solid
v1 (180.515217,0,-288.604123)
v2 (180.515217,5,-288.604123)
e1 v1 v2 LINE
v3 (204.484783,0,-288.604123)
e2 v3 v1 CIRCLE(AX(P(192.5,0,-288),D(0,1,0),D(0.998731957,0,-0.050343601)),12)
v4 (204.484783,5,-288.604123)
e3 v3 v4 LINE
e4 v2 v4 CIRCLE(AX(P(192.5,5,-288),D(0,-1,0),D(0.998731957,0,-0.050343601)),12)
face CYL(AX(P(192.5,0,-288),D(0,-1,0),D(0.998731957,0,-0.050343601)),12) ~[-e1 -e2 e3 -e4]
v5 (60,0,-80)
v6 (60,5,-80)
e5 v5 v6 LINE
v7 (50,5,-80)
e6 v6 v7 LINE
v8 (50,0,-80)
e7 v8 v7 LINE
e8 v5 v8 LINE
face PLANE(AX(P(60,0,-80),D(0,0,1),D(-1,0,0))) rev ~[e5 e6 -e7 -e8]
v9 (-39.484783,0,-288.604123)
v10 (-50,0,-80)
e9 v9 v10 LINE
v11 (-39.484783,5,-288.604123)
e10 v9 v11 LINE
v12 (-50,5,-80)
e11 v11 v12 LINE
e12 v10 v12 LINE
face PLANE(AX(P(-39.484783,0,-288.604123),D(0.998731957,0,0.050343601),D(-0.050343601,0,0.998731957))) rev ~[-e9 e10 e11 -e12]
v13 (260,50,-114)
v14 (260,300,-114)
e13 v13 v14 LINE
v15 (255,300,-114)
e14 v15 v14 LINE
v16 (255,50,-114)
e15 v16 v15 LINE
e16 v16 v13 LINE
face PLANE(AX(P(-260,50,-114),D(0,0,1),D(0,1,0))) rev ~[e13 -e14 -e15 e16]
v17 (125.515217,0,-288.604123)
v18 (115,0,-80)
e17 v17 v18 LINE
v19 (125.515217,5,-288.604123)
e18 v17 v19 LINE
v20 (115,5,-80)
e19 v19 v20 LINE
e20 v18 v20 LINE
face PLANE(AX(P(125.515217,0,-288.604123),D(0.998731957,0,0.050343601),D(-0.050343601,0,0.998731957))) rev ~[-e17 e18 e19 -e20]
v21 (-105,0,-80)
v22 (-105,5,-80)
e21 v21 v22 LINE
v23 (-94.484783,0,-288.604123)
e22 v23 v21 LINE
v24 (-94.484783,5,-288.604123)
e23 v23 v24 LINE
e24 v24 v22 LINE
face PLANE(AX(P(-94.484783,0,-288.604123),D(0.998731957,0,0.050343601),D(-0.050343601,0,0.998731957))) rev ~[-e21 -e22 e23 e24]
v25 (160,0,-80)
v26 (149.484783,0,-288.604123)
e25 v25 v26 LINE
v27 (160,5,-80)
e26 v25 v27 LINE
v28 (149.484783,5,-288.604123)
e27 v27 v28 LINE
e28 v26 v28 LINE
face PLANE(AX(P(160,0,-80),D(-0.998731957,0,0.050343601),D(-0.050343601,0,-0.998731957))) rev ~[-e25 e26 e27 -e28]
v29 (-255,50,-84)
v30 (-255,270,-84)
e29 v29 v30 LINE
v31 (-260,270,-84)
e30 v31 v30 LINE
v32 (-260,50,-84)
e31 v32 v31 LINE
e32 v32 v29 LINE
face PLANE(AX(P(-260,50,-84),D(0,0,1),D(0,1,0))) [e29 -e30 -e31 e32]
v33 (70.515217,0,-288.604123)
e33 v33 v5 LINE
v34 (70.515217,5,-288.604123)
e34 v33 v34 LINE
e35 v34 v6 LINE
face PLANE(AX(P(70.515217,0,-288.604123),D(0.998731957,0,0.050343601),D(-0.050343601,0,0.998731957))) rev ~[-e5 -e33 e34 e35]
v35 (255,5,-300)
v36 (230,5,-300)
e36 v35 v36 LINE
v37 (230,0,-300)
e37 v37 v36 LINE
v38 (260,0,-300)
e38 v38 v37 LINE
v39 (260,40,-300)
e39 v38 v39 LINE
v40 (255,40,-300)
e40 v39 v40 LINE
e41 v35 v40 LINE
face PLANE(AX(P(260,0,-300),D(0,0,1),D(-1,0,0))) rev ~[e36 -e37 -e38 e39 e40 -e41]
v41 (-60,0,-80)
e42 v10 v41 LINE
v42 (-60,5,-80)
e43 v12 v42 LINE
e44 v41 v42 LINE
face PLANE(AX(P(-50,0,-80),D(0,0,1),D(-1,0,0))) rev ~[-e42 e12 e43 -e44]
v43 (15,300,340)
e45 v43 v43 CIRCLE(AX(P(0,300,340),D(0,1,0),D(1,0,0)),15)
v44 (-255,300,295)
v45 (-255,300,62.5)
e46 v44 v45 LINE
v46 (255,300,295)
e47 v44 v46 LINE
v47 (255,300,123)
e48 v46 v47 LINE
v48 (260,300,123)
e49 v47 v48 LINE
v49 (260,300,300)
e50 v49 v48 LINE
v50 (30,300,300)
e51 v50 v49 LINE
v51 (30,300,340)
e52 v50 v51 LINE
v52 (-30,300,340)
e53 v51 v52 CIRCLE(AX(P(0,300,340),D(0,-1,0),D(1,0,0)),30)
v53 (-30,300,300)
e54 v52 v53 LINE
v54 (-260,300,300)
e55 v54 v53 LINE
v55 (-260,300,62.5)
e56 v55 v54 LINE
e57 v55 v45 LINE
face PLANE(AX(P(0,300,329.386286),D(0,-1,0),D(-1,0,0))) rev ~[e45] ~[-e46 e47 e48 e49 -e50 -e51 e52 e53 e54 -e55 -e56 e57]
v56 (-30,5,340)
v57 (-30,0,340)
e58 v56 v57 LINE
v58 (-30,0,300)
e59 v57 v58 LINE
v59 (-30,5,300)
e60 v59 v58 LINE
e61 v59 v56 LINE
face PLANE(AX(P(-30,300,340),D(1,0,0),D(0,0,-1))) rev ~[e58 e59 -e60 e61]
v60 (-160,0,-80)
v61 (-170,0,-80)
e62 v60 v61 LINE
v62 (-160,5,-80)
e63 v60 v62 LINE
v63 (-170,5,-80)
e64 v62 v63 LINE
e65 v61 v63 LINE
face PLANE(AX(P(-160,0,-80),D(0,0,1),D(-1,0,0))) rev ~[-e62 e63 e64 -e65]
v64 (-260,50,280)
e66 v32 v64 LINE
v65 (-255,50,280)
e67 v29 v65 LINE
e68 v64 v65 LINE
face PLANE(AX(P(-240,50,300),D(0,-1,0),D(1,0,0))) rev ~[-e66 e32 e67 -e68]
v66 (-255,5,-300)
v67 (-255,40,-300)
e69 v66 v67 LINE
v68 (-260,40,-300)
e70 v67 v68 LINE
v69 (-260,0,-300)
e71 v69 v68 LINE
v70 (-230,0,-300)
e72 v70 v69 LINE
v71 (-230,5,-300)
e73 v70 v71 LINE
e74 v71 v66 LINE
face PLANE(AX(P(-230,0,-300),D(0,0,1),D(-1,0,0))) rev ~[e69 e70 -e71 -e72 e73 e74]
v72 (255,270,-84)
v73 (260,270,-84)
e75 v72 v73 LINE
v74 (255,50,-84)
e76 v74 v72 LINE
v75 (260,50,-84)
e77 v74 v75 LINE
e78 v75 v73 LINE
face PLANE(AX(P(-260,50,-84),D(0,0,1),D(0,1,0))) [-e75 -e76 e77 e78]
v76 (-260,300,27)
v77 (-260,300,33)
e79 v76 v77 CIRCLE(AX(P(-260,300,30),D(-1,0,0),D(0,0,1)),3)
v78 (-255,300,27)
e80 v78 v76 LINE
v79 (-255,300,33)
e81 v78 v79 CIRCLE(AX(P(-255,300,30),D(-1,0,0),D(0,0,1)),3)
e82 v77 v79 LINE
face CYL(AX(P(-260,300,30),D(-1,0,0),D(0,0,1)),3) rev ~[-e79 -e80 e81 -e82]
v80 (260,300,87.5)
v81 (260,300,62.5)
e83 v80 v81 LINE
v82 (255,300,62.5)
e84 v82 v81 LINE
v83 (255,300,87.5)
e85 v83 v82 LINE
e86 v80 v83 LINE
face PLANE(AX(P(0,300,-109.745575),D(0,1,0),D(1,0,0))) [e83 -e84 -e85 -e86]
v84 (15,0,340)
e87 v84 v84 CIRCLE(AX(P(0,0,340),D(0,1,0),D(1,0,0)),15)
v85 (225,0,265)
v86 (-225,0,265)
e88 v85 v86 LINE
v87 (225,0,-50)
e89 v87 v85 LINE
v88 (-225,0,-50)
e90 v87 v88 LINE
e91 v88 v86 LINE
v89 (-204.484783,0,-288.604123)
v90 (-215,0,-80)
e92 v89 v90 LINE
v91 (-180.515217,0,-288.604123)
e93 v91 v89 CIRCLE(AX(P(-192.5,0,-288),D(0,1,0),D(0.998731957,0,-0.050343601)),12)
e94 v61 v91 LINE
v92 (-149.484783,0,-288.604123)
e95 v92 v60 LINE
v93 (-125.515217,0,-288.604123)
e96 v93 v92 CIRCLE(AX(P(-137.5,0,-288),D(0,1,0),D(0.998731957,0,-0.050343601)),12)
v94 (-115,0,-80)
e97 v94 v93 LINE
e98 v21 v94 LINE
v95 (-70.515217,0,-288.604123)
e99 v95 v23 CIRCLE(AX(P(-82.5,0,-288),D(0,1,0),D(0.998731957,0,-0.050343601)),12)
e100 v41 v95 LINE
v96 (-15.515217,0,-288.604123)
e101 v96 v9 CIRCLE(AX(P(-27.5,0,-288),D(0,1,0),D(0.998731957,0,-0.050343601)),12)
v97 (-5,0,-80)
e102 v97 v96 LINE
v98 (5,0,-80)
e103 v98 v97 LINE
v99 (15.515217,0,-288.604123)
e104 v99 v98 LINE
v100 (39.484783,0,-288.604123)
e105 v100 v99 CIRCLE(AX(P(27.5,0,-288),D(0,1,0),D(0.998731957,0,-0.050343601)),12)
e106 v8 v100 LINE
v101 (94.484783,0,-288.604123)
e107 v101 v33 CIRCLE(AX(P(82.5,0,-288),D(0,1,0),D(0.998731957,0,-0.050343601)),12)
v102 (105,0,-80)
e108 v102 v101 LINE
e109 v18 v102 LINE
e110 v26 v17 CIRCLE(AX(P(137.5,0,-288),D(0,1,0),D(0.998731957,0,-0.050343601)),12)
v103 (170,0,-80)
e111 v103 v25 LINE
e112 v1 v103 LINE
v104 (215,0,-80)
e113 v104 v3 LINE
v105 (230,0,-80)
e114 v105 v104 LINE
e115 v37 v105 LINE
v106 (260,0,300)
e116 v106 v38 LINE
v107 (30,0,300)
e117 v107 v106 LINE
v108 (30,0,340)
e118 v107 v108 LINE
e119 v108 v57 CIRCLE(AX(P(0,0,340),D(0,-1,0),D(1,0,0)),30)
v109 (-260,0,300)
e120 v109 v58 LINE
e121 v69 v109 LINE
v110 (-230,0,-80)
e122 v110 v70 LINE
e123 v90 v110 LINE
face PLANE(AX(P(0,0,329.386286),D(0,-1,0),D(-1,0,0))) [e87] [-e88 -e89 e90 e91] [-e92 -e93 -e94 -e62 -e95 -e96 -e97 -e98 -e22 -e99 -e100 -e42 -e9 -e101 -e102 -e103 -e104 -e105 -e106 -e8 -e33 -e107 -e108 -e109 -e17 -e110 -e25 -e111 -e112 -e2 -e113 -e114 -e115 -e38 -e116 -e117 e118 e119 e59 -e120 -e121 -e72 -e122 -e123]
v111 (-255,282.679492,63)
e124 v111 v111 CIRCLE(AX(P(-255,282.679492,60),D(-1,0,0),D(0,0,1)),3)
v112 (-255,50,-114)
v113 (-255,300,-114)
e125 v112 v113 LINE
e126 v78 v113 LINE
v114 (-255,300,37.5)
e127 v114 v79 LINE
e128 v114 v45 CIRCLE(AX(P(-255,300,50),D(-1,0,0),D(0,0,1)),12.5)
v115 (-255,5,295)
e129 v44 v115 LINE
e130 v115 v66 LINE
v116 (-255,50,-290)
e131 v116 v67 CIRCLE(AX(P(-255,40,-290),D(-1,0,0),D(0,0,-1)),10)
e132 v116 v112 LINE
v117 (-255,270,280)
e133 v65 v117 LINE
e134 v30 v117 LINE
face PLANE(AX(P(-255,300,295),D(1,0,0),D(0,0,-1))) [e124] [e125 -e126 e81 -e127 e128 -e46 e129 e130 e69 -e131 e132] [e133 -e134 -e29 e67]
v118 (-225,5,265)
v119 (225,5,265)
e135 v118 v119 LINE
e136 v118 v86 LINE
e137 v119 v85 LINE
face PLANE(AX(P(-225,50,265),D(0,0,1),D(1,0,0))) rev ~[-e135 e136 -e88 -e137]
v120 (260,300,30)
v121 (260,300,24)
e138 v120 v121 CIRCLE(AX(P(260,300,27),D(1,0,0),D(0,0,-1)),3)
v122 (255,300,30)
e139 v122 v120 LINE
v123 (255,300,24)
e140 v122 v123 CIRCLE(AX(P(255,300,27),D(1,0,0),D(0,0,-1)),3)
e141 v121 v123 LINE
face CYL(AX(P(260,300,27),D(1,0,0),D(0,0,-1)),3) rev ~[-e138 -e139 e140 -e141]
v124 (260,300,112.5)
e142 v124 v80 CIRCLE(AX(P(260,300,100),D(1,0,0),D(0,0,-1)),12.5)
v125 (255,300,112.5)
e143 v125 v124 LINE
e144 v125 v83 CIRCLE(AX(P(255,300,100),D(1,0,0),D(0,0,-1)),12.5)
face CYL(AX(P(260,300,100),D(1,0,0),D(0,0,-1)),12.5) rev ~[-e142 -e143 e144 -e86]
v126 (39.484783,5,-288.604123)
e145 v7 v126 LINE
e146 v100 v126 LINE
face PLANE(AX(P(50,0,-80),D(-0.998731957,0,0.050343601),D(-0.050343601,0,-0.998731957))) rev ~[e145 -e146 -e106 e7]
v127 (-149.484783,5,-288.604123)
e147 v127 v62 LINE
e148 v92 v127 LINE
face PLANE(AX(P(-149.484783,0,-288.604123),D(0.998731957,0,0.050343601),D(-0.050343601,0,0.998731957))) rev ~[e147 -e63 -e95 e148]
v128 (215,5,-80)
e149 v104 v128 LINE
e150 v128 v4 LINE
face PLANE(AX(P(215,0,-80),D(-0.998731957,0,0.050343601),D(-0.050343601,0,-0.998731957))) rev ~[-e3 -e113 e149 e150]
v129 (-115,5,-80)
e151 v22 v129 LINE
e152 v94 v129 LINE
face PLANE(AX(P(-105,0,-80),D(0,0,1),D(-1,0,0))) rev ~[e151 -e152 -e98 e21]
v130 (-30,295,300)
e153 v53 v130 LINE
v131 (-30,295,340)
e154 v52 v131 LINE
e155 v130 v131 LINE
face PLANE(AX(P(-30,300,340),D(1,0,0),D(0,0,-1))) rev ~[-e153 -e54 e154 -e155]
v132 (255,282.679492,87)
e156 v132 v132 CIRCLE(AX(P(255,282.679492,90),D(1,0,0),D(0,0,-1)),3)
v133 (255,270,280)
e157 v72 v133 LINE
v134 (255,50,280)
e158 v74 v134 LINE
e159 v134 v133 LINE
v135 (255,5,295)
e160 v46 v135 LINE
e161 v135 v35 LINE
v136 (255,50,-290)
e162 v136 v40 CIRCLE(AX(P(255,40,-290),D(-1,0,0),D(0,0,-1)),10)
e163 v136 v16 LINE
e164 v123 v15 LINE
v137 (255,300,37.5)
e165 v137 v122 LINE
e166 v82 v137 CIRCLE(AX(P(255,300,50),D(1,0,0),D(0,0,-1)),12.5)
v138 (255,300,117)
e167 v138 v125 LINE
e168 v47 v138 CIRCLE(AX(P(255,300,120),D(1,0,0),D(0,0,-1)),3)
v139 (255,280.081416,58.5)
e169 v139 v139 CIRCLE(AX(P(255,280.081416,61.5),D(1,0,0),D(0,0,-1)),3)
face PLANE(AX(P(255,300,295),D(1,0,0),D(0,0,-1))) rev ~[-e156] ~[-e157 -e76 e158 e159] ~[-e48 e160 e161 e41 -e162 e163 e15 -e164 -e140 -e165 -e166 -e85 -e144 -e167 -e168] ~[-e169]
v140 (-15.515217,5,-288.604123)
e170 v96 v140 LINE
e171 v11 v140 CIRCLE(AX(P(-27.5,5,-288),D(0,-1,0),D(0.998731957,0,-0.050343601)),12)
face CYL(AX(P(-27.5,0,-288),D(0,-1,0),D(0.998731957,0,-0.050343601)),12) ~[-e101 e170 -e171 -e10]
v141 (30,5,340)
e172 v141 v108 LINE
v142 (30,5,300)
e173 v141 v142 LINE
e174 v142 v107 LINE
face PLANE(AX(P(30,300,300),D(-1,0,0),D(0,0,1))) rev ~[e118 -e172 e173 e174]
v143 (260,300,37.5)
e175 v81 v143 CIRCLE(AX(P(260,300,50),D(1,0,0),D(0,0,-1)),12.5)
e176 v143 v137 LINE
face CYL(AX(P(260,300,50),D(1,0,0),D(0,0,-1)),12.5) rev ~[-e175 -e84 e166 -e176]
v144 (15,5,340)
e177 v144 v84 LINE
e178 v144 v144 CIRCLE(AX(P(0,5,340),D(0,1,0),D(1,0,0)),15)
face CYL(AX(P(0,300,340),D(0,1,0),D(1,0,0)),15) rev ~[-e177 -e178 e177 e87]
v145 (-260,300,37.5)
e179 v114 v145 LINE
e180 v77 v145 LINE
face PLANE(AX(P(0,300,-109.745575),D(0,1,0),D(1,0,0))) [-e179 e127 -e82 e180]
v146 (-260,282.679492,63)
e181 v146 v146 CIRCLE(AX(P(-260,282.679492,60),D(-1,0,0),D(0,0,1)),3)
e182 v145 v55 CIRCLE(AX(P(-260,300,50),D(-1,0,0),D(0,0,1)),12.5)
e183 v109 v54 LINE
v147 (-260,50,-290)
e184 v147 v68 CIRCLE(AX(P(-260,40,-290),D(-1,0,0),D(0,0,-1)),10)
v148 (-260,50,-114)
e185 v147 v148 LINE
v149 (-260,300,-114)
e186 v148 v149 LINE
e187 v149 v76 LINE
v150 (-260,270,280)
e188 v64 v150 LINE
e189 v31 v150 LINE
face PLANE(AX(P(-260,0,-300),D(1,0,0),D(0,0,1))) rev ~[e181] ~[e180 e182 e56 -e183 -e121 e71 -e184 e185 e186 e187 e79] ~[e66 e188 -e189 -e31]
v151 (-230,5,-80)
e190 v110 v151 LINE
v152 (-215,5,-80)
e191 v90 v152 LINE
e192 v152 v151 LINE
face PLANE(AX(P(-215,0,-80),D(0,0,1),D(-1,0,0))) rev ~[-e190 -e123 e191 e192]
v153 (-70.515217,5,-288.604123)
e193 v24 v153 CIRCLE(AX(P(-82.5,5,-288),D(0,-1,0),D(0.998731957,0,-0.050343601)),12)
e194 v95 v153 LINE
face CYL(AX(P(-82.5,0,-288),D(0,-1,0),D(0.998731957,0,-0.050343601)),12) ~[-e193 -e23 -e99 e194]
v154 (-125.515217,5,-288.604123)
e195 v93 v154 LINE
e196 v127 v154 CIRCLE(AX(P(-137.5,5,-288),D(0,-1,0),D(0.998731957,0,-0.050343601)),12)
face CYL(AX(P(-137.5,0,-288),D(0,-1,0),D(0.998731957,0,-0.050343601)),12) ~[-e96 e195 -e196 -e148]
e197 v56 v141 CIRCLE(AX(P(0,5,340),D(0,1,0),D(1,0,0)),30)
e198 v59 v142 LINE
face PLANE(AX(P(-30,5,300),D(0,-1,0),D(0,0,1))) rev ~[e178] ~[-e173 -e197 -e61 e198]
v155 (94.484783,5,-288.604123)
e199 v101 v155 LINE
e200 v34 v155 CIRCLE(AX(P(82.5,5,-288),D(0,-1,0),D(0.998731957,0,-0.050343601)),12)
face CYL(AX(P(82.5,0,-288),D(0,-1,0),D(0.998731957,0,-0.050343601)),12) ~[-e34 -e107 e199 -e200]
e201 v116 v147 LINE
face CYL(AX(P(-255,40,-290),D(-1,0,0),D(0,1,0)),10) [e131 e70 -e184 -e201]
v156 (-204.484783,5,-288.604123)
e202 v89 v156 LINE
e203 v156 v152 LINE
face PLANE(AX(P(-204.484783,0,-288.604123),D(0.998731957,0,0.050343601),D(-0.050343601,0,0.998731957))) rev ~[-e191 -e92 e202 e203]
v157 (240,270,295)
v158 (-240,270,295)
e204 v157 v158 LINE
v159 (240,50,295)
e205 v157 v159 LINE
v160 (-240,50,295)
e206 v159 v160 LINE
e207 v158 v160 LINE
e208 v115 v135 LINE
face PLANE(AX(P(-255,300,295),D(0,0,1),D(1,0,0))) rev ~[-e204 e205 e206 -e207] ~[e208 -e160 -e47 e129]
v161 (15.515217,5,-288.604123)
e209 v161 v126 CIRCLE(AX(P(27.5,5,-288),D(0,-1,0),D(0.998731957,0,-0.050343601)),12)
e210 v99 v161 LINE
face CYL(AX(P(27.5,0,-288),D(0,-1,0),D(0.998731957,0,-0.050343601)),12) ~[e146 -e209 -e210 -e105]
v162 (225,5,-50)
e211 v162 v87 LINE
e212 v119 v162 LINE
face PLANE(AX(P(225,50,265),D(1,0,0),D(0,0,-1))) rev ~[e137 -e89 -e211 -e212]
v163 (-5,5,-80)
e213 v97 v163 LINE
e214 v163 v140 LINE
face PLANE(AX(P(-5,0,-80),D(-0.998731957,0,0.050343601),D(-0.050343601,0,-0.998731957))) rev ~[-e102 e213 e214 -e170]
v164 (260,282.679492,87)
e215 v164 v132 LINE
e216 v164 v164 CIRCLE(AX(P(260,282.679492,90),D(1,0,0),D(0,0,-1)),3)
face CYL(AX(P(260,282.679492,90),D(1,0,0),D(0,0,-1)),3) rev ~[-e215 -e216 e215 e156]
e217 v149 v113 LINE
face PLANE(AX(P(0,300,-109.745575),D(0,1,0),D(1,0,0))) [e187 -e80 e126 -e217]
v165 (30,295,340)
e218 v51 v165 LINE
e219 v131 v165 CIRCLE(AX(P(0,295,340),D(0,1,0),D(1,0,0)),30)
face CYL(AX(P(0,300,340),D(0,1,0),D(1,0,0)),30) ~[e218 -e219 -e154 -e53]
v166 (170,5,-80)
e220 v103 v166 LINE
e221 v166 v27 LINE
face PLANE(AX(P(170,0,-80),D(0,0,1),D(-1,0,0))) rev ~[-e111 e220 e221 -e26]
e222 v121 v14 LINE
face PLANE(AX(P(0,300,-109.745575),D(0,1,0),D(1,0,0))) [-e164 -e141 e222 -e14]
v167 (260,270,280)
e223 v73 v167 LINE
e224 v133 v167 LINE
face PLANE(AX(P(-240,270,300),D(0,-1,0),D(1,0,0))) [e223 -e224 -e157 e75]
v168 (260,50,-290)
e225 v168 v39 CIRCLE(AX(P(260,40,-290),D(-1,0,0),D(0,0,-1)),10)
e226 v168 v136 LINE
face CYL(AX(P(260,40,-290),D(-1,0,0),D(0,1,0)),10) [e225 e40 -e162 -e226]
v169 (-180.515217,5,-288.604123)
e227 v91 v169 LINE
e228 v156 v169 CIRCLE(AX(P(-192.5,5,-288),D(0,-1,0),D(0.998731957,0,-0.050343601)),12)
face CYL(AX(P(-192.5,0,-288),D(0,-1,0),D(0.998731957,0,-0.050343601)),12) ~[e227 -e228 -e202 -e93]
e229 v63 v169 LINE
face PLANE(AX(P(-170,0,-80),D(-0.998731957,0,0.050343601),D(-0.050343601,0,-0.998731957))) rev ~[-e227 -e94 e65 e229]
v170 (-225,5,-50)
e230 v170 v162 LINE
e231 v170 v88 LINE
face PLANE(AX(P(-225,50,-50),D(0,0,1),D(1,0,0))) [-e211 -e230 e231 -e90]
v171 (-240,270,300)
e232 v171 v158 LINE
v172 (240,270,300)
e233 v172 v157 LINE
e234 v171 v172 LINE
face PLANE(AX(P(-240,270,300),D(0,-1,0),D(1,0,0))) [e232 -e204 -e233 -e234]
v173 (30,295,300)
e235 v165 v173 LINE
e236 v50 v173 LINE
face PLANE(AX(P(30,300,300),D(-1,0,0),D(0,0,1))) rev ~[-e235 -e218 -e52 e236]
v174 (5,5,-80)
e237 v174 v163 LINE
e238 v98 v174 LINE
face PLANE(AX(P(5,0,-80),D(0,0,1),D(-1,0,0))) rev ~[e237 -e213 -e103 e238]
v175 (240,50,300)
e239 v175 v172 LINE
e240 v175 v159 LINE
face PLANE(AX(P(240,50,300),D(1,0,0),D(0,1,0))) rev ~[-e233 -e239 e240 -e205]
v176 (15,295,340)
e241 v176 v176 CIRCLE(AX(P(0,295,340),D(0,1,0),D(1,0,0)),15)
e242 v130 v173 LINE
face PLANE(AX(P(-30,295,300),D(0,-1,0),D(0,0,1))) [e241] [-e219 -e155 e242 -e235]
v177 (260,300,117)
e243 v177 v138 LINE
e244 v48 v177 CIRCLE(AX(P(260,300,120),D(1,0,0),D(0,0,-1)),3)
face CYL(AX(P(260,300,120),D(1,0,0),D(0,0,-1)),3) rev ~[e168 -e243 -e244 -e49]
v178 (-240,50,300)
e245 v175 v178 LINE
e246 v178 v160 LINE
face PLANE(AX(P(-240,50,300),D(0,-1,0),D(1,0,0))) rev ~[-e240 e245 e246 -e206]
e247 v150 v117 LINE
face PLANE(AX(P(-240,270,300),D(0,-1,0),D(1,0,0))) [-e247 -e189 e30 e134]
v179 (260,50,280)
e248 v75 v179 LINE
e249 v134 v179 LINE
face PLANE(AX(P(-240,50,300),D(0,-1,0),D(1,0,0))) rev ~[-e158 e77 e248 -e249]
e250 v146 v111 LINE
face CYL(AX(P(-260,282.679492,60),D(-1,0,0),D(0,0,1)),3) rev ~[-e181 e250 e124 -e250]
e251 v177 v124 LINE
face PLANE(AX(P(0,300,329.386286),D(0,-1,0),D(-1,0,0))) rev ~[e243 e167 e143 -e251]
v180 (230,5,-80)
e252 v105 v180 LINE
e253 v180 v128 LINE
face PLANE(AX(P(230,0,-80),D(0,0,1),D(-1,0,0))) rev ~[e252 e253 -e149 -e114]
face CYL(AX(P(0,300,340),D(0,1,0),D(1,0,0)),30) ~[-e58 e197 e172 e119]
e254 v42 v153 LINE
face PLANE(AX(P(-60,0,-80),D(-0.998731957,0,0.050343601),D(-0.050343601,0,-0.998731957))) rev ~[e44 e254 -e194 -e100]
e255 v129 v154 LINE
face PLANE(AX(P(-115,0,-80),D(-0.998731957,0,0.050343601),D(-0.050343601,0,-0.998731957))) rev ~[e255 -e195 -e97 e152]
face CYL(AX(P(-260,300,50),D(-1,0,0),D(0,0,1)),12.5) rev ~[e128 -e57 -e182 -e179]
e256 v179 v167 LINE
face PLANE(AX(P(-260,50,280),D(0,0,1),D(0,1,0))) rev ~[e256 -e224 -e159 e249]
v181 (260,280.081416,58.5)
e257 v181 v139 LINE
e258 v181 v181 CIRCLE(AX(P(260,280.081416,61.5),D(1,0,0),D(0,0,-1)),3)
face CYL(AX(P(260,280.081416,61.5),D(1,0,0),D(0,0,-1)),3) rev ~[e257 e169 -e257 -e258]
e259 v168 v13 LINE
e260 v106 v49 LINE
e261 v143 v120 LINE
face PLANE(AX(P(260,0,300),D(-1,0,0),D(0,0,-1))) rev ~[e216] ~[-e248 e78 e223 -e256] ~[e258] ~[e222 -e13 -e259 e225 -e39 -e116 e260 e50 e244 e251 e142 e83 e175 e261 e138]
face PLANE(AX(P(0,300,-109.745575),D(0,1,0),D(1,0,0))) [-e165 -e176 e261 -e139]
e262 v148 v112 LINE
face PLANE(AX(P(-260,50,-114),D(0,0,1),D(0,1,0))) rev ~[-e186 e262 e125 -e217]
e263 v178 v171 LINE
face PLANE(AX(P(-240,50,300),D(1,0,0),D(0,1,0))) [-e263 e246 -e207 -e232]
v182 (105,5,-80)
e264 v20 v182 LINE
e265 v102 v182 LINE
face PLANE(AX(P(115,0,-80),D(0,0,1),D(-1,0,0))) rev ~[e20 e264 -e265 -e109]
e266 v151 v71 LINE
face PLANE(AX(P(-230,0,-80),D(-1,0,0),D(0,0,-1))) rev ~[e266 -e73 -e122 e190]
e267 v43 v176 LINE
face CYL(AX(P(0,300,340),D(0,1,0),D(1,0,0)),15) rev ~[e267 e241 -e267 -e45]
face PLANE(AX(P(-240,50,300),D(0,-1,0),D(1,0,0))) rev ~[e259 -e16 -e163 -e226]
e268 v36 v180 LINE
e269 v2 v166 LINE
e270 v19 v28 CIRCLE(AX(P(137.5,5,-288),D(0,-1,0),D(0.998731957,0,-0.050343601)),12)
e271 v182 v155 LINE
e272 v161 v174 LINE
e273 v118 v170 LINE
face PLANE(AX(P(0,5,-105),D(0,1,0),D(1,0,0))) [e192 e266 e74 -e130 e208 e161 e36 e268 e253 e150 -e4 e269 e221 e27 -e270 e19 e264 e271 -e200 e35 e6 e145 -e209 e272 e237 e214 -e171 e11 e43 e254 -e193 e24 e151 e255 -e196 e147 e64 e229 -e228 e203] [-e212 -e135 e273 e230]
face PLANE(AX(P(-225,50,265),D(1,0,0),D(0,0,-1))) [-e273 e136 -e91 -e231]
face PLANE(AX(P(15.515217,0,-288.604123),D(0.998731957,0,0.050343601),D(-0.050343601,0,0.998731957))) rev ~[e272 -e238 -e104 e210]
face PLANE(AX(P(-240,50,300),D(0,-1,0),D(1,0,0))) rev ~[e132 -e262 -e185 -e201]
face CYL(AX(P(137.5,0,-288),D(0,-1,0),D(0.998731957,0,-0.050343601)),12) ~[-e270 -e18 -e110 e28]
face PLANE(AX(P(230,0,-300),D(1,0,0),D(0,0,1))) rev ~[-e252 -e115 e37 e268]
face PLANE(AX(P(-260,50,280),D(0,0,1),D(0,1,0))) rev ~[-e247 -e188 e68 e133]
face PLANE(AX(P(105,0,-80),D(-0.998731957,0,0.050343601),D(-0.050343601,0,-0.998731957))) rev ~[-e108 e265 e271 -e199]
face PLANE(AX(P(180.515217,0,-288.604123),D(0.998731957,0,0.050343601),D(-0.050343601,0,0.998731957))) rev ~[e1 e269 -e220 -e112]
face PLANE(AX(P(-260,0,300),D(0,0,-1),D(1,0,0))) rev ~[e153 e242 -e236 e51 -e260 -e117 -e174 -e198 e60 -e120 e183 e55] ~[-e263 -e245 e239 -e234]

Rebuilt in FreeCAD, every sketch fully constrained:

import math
import FreeCAD as App
import Part
import Sketcher
from FreeCAD import Vector


def edges_at(feature, points):
    """Names of the edges that pass closest to the given points."""
    edges = feature.Shape.Edges
    near = lambda p: min(range(len(edges)), key=lambda i: edges[i].distToShape(Part.Vertex(*p))[0])
    return sorted({f"Edge{near(p) + 1}" for p in points})


def add_polygon(sketch, points):
    """Adds a closed chain of lines whose ends are joined by coincident constraints."""
    first, n = sketch.GeometryCount, len(points)
    for a, b in zip(points, points[1:] + points[:1]):
        sketch.addGeometry(Part.LineSegment(App.Vector(*a, 0), App.Vector(*b, 0)), False)
    for i in range(n):
        sketch.addConstraint(Sketcher.Constraint("Coincident", first + i, 2, first + (i + 1) % n, 1))

doc = App.newDocument("Part")
body = doc.addObject("PartDesign::Body", "Body")

sketch1 = body.newObject("Sketcher::SketchObject", "Sketch")
sketch1.AttachmentSupport = (doc.getObject("XZ_Plane"), [""])
sketch1.MapMode = "FlatFace"
sketch1.addGeometry(Part.LineSegment(Vector(-215, -80, 0), Vector(-230, -80, 0)), False)
sketch1.addGeometry(Part.LineSegment(Vector(-230, -80, 0), Vector(-230, -300, 0)), False)
sketch1.addGeometry(Part.LineSegment(Vector(-230, -300, 0), Vector(-260, -300, 0)), False)
sketch1.addGeometry(Part.LineSegment(Vector(-260, -300, 0), Vector(-260, 300, 0)), False)
sketch1.addGeometry(Part.LineSegment(Vector(-260, 300, 0), Vector(260, 300, 0)), False)
sketch1.addGeometry(Part.LineSegment(Vector(260, 300, 0), Vector(260, -300, 0)), False)
sketch1.addGeometry(Part.LineSegment(Vector(260, -300, 0), Vector(230, -300, 0)), False)
sketch1.addGeometry(Part.LineSegment(Vector(230, -300, 0), Vector(230, -80, 0)), False)
sketch1.addGeometry(Part.LineSegment(Vector(230, -80, 0), Vector(215, -80, 0)), False)
sketch1.addGeometry(Part.LineSegment(Vector(215, -80, 0), Vector(204.484783, -288.604123, 0)), False)
sketch1.addGeometry(Part.ArcOfCircle(Part.Circle(Vector(192.5, -288, 0), Vector(0, 0, 1), 12), math.radians(-177.114304), math.radians(-2.885696)), False)
sketch1.addGeometry(Part.LineSegment(Vector(180.515217, -288.604123, 0), Vector(170, -80, 0)), False)
sketch1.addGeometry(Part.LineSegment(Vector(170, -80, 0), Vector(160, -80, 0)), False)
sketch1.addGeometry(Part.LineSegment(Vector(160, -80, 0), Vector(149.484783, -288.604123, 0)), False)
sketch1.addGeometry(Part.ArcOfCircle(Part.Circle(Vector(137.5, -288, 0), Vector(0, 0, 1), 12), math.radians(-177.114304), math.radians(-2.885696)), False)
sketch1.addGeometry(Part.LineSegment(Vector(125.515217, -288.604123, 0), Vector(115, -80, 0)), False)
sketch1.addGeometry(Part.LineSegment(Vector(115, -80, 0), Vector(105, -80, 0)), False)
sketch1.addGeometry(Part.LineSegment(Vector(105, -80, 0), Vector(94.484783, -288.604123, 0)), False)
sketch1.addGeometry(Part.ArcOfCircle(Part.Circle(Vector(82.5, -288, 0), Vector(0, 0, 1), 12), math.radians(-177.114304), math.radians(-2.885696)), False)
sketch1.addGeometry(Part.LineSegment(Vector(70.515217, -288.604123, 0), Vector(60, -80, 0)), False)
sketch1.addGeometry(Part.LineSegment(Vector(60, -80, 0), Vector(50, -80, 0)), False)
sketch1.addGeometry(Part.LineSegment(Vector(50, -80, 0), Vector(39.484783, -288.604123, 0)), False)
sketch1.addGeometry(Part.ArcOfCircle(Part.Circle(Vector(27.5, -288, 0), Vector(0, 0, 1), 12), math.radians(-177.114304), math.radians(-2.885696)), False)
sketch1.addGeometry(Part.LineSegment(Vector(15.515217, -288.604123, 0), Vector(5, -80, 0)), False)
sketch1.addGeometry(Part.LineSegment(Vector(5, -80, 0), Vector(-5, -80, 0)), False)
sketch1.addGeometry(Part.LineSegment(Vector(-5, -80, 0), Vector(-15.515217, -288.604123, 0)), False)
sketch1.addGeometry(Part.ArcOfCircle(Part.Circle(Vector(-27.5, -288, 0), Vector(0, 0, 1), 12), math.radians(-177.114304), math.radians(-2.885696)), False)
sketch1.addGeometry(Part.LineSegment(Vector(-39.484783, -288.604123, 0), Vector(-50, -80, 0)), False)
sketch1.addGeometry(Part.LineSegment(Vector(-50, -80, 0), Vector(-60, -80, 0)), False)
sketch1.addGeometry(Part.LineSegment(Vector(-60, -80, 0), Vector(-70.515217, -288.604123, 0)), False)
sketch1.addGeometry(Part.ArcOfCircle(Part.Circle(Vector(-82.5, -288, 0), Vector(0, 0, 1), 12), math.radians(-177.114304), math.radians(-2.885696)), False)
sketch1.addGeometry(Part.LineSegment(Vector(-94.484783, -288.604123, 0), Vector(-105, -80, 0)), False)
sketch1.addGeometry(Part.LineSegment(Vector(-105, -80, 0), Vector(-115, -80, 0)), False)
sketch1.addGeometry(Part.LineSegment(Vector(-115, -80, 0), Vector(-125.515217, -288.604123, 0)), False)
sketch1.addGeometry(Part.ArcOfCircle(Part.Circle(Vector(-137.5, -288, 0), Vector(0, 0, 1), 12), math.radians(-177.114304), math.radians(-2.885696)), False)
sketch1.addGeometry(Part.LineSegment(Vector(-149.484783, -288.604123, 0), Vector(-160, -80, 0)), False)
sketch1.addGeometry(Part.LineSegment(Vector(-160, -80, 0), Vector(-170, -80, 0)), False)
sketch1.addGeometry(Part.LineSegment(Vector(-170, -80, 0), Vector(-180.515217, -288.604123, 0)), False)
sketch1.addGeometry(Part.ArcOfCircle(Part.Circle(Vector(-192.5, -288, 0), Vector(0, 0, 1), 12), math.radians(-177.114304), math.radians(-2.885696)), False)
sketch1.addGeometry(Part.LineSegment(Vector(-204.484783, -288.604123, 0), Vector(-215, -80, 0)), False)
sketch1.addConstraint(Sketcher.Constraint("Coincident", 0, 2, 1, 1))
sketch1.addConstraint(Sketcher.Constraint("Coincident", 1, 2, 2, 1))
sketch1.addConstraint(Sketcher.Constraint("Coincident", 2, 2, 3, 1))
sketch1.addConstraint(Sketcher.Constraint("Coincident", 3, 2, 4, 1))
sketch1.addConstraint(Sketcher.Constraint("Coincident", 4, 2, 5, 1))
sketch1.addConstraint(Sketcher.Constraint("Coincident", 5, 2, 6, 1))
sketch1.addConstraint(Sketcher.Constraint("Coincident", 6, 2, 7, 1))
sketch1.addConstraint(Sketcher.Constraint("Coincident", 7, 2, 8, 1))
sketch1.addConstraint(Sketcher.Constraint("Coincident", 8, 2, 9, 1))
sketch1.addConstraint(Sketcher.Constraint("Tangent", 9, 2, 10, 2))
sketch1.addConstraint(Sketcher.Constraint("Tangent", 10, 1, 11, 1))
sketch1.addConstraint(Sketcher.Constraint("Coincident", 11, 2, 12, 1))
sketch1.addConstraint(Sketcher.Constraint("Coincident", 12, 2, 13, 1))
sketch1.addConstraint(Sketcher.Constraint("Tangent", 13, 2, 14, 2))
sketch1.addConstraint(Sketcher.Constraint("Tangent", 14, 1, 15, 1))
sketch1.addConstraint(Sketcher.Constraint("Coincident", 15, 2, 16, 1))
sketch1.addConstraint(Sketcher.Constraint("Coincident", 16, 2, 17, 1))
sketch1.addConstraint(Sketcher.Constraint("Tangent", 17, 2, 18, 2))
sketch1.addConstraint(Sketcher.Constraint("Tangent", 18, 1, 19, 1))
sketch1.addConstraint(Sketcher.Constraint("Coincident", 19, 2, 20, 1))
sketch1.addConstraint(Sketcher.Constraint("Coincident", 20, 2, 21, 1))
sketch1.addConstraint(Sketcher.Constraint("Tangent", 21, 2, 22, 2))
sketch1.addConstraint(Sketcher.Constraint("Tangent", 22, 1, 23, 1))
sketch1.addConstraint(Sketcher.Constraint("Coincident", 23, 2, 24, 1))
sketch1.addConstraint(Sketcher.Constraint("Coincident", 24, 2, 25, 1))
sketch1.addConstraint(Sketcher.Constraint("Tangent", 25, 2, 26, 2))
sketch1.addConstraint(Sketcher.Constraint("Tangent", 26, 1, 27, 1))
sketch1.addConstraint(Sketcher.Constraint("Coincident", 27, 2, 28, 1))
sketch1.addConstraint(Sketcher.Constraint("Coincident", 28, 2, 29, 1))
sketch1.addConstraint(Sketcher.Constraint("Tangent", 29, 2, 30, 2))
sketch1.addConstraint(Sketcher.Constraint("Tangent", 30, 1, 31, 1))
sketch1.addConstraint(Sketcher.Constraint("Coincident", 31, 2, 32, 1))
sketch1.addConstraint(Sketcher.Constraint("Coincident", 32, 2, 33, 1))
sketch1.addConstraint(Sketcher.Constraint("Tangent", 33, 2, 34, 2))
sketch1.addConstraint(Sketcher.Constraint("Tangent", 34, 1, 35, 1))
sketch1.addConstraint(Sketcher.Constraint("Coincident", 35, 2, 36, 1))
sketch1.addConstraint(Sketcher.Constraint("Coincident", 36, 2, 37, 1))
sketch1.addConstraint(Sketcher.Constraint("Tangent", 37, 2, 38, 2))
sketch1.addConstraint(Sketcher.Constraint("Tangent", 38, 1, 39, 1))
sketch1.addConstraint(Sketcher.Constraint("Coincident", 39, 2, 0, 1))
sketch1.addConstraint(Sketcher.Constraint("Horizontal", 0))
sketch1.addConstraint(Sketcher.Constraint("Vertical", 1))
sketch1.addConstraint(Sketcher.Constraint("Horizontal", 2))
sketch1.addConstraint(Sketcher.Constraint("Vertical", 3))
sketch1.addConstraint(Sketcher.Constraint("Horizontal", 4))
sketch1.addConstraint(Sketcher.Constraint("Vertical", 5))
sketch1.addConstraint(Sketcher.Constraint("Horizontal", 6))
sketch1.addConstraint(Sketcher.Constraint("Vertical", 7))
sketch1.addConstraint(Sketcher.Constraint("Horizontal", 8))
sketch1.addConstraint(Sketcher.Constraint("Horizontal", 12))
sketch1.addConstraint(Sketcher.Constraint("Horizontal", 16))
sketch1.addConstraint(Sketcher.Constraint("Horizontal", 20))
sketch1.addConstraint(Sketcher.Constraint("Horizontal", 24))
sketch1.addConstraint(Sketcher.Constraint("Horizontal", 28))
sketch1.addConstraint(Sketcher.Constraint("Horizontal", 32))
sketch1.addConstraint(Sketcher.Constraint("Horizontal", 36))
sketch1.addConstraint(Sketcher.Constraint("Equal", 10, 14))
sketch1.addConstraint(Sketcher.Constraint("Equal", 14, 18))
sketch1.addConstraint(Sketcher.Constraint("Equal", 18, 22))
sketch1.addConstraint(Sketcher.Constraint("Equal", 22, 26))
sketch1.addConstraint(Sketcher.Constraint("Equal", 26, 30))
sketch1.addConstraint(Sketcher.Constraint("Equal", 30, 34))
sketch1.addConstraint(Sketcher.Constraint("Equal", 34, 38))
sketch1.addConstraint(Sketcher.Constraint("Symmetric", 2, 2, 4, 2, -1, 1))
sketch1.addConstraint(Sketcher.Constraint("Symmetric", 22, 3, 26, 3, -2))
sketch1.addConstraint(Sketcher.Constraint("Symmetric", 18, 3, 30, 3, -2))
sketch1.addConstraint(Sketcher.Constraint("Symmetric", 14, 3, 34, 3, -2))
sketch1.addConstraint(Sketcher.Constraint("Symmetric", 10, 3, 38, 3, -2))
sketch1.addConstraint(Sketcher.Constraint("Symmetric", 1, 2, 6, 2, -2))
sketch1.addConstraint(Sketcher.Constraint("Symmetric", 20, 2, 27, 2, -2))
sketch1.addConstraint(Sketcher.Constraint("Symmetric", 16, 2, 31, 2, -2))
sketch1.addConstraint(Sketcher.Constraint("Symmetric", 12, 2, 35, 2, -2))
sketch1.addConstraint(Sketcher.Constraint("Symmetric", 8, 2, 39, 2, -2))
sketch1.addConstraint(Sketcher.Constraint("Parallel", 9, 13))
sketch1.addConstraint(Sketcher.Constraint("Parallel", 11, 15))
sketch1.addConstraint(Sketcher.Constraint("Parallel", 13, 17))
sketch1.addConstraint(Sketcher.Constraint("Parallel", 15, 19))
sketch1.addConstraint(Sketcher.Constraint("Parallel", 17, 21))
sketch1.addConstraint(Sketcher.Constraint("Parallel", 19, 23))
sketch1.addConstraint(Sketcher.Constraint("Parallel", 21, 25))
sketch1.addConstraint(Sketcher.Constraint("Parallel", 23, 27))
sketch1.addConstraint(Sketcher.Constraint("Parallel", 25, 29))
sketch1.addConstraint(Sketcher.Constraint("Parallel", 29, 33))
sketch1.addConstraint(Sketcher.Constraint("Parallel", 33, 37))
sketch1.addConstraint(Sketcher.Constraint("Horizontal", 10, 3, 14, 3))
sketch1.addConstraint(Sketcher.Constraint("Horizontal", 14, 3, 18, 3))
sketch1.addConstraint(Sketcher.Constraint("Horizontal", 18, 3, 22, 3))
sketch1.addConstraint(Sketcher.Constraint("Horizontal", 8, 2, 11, 2))
sketch1.addConstraint(Sketcher.Constraint("Horizontal", 12, 2, 15, 2))
sketch1.addConstraint(Sketcher.Constraint("Horizontal", 16, 2, 19, 2))
sketch1.addConstraint(Sketcher.Constraint("Horizontal", 20, 2, 23, 2))
sketch1.addConstraint(Sketcher.Constraint("Equal", 12, 16))
sketch1.addConstraint(Sketcher.Constraint("Equal", 16, 20))
sketch1.addConstraint(Sketcher.Constraint("Equal", 20, 24))
sketch1.addConstraint(Sketcher.Constraint("Radius", 10, 12.0))
sketch1.addConstraint(Sketcher.Constraint("DistanceX", 0, 2, 0, 1, 15.0))
sketch1.addConstraint(Sketcher.Constraint("DistanceX", 2, 2, 2, 1, 30.0))
sketch1.addConstraint(Sketcher.Constraint("DistanceX", 4, 1, 4, 2, 520.0))
sketch1.addConstraint(Sketcher.Constraint("DistanceX", 12, 2, 12, 1, 10.0))
sketch1.addConstraint(Sketcher.Constraint("DistanceY", 1, 2, 1, 1, 220.0))
sketch1.addConstraint(Sketcher.Constraint("DistanceY", 3, 1, 3, 2, 600.0))
sketch1.addConstraint(Sketcher.Constraint("DistanceY", 10, 3, -1, 1, 288.0))
pad1 = body.newObject("PartDesign::Pad", "Pad")
pad1.Profile = sketch1
pad1.Length = 300
pad1.Reversed = True

sketch2 = body.newObject("Sketcher::SketchObject", "Sketch001")
sketch2.AttachmentSupport = (doc.getObject("XY_Plane"), [""])
sketch2.MapMode = "FlatFace"
sketch2.AttachmentOffset = App.Placement(Vector(0, 0, 300), App.Rotation())
add_polygon(sketch2, [(-240, 270), (-240, 50), (240, 50), (240, 270)])
sketch2.addConstraint(Sketcher.Constraint("Vertical", 0))
sketch2.addConstraint(Sketcher.Constraint("Horizontal", 1))
sketch2.addConstraint(Sketcher.Constraint("Vertical", 2))
sketch2.addConstraint(Sketcher.Constraint("Horizontal", 3))
sketch2.addConstraint(Sketcher.Constraint("DistanceX", 1, 1, 1, 2, 480.0))
sketch2.addConstraint(Sketcher.Constraint("DistanceY", 0, 2, 0, 1, 220.0))
sketch2.addConstraint(Sketcher.Constraint("DistanceX", 0, 2, -1, 1, 240.0))
sketch2.addConstraint(Sketcher.Constraint("DistanceY", -1, 1, 0, 2, 50.0))
pocket1 = body.newObject("PartDesign::Pocket", "Pocket")
pocket1.Profile = sketch2
pocket1.Type = "ThroughAll"

sketch3 = body.newObject("Sketcher::SketchObject", "Sketch002")
sketch3.AttachmentSupport = (doc.getObject("YZ_Plane"), [""])
sketch3.MapMode = "FlatFace"
sketch3.AttachmentOffset = App.Placement(Vector(0, 0, -260), App.Rotation())
add_polygon(sketch3, [(270, -84), (50, -84), (50, 280), (270, 280)])
sketch3.addConstraint(Sketcher.Constraint("Horizontal", 0))
sketch3.addConstraint(Sketcher.Constraint("Vertical", 1))
sketch3.addConstraint(Sketcher.Constraint("Horizontal", 2))
sketch3.addConstraint(Sketcher.Constraint("Vertical", 3))
sketch3.addConstraint(Sketcher.Constraint("DistanceX", 0, 2, 0, 1, 220.0))
sketch3.addConstraint(Sketcher.Constraint("DistanceY", 1, 1, 1, 2, 364.0))
sketch3.addConstraint(Sketcher.Constraint("DistanceX", -1, 1, 0, 2, 50.0))
sketch3.addConstraint(Sketcher.Constraint("DistanceY", 0, 2, -1, 1, 84.0))
pocket2 = body.newObject("PartDesign::Pocket", "Pocket001")
pocket2.Profile = sketch3
pocket2.Length = 520
pocket2.Reversed = True

sketch4 = body.newObject("Sketcher::SketchObject", "Sketch003")
sketch4.AttachmentSupport = (doc.getObject("YZ_Plane"), [""])
sketch4.MapMode = "FlatFace"
sketch4.AttachmentOffset = App.Placement(Vector(0, 0, -260), App.Rotation())
add_polygon(sketch4, [(300, -300), (50, -300), (50, -114), (300, -114)])
sketch4.addConstraint(Sketcher.Constraint("Horizontal", 0))
sketch4.addConstraint(Sketcher.Constraint("Vertical", 1))
sketch4.addConstraint(Sketcher.Constraint("Horizontal", 2))
sketch4.addConstraint(Sketcher.Constraint("Vertical", 3))
sketch4.addConstraint(Sketcher.Constraint("DistanceX", 0, 2, 0, 1, 250.0))
sketch4.addConstraint(Sketcher.Constraint("DistanceY", 1, 1, 1, 2, 186.0))
sketch4.addConstraint(Sketcher.Constraint("DistanceX", -1, 1, 0, 2, 50.0))
sketch4.addConstraint(Sketcher.Constraint("DistanceY", 0, 2, -1, 1, 300.0))
pocket3 = body.newObject("PartDesign::Pocket", "Pocket002")
pocket3.Profile = sketch4
pocket3.Length = 520
pocket3.Reversed = True

sketch5 = body.newObject("Sketcher::SketchObject", "Sketch004")
sketch5.AttachmentSupport = (doc.getObject("XZ_Plane"), [""])
sketch5.MapMode = "FlatFace"
sketch5.AttachmentOffset = App.Placement(Vector(0, 0, -300), App.Rotation())
add_polygon(sketch5, [(-255, -505), (-255, 295), (255, 295), (255, -505)])
sketch5.addConstraint(Sketcher.Constraint("Vertical", 0))
sketch5.addConstraint(Sketcher.Constraint("Horizontal", 1))
sketch5.addConstraint(Sketcher.Constraint("Vertical", 2))
sketch5.addConstraint(Sketcher.Constraint("Horizontal", 3))
sketch5.addConstraint(Sketcher.Constraint("DistanceX", 1, 1, 1, 2, 510.0))
sketch5.addConstraint(Sketcher.Constraint("DistanceY", 0, 1, 0, 2, 800.0))
sketch5.addConstraint(Sketcher.Constraint("DistanceX", 0, 2, -1, 1, 255.0))
sketch5.addConstraint(Sketcher.Constraint("DistanceY", -1, 1, 0, 2, 295.0))
pocket4 = body.newObject("PartDesign::Pocket", "Pocket003")
pocket4.Profile = sketch5
pocket4.Length = 295
pocket4.Reversed = True

sketch6 = body.newObject("Sketcher::SketchObject", "Sketch005")
sketch6.AttachmentSupport = (doc.getObject("YZ_Plane"), [""])
sketch6.MapMode = "FlatFace"
sketch6.AttachmentOffset = App.Placement(Vector(0, 0, -260), App.Rotation())
sketch6.addGeometry(Part.Circle(Vector(300, 50, 0), Vector(0, 0, 1), 12.5), False)
sketch6.addConstraint(Sketcher.Constraint("Diameter", 0, 25.0))
sketch6.addConstraint(Sketcher.Constraint("DistanceX", -1, 1, 0, 3, 300.0))
sketch6.addConstraint(Sketcher.Constraint("DistanceY", -1, 1, 0, 3, 50.0))
pocket5 = body.newObject("PartDesign::Pocket", "Pocket004")
pocket5.Profile = sketch6
pocket5.Type = "UpToFirst"
pocket5.Reversed = True

sketch7 = body.newObject("Sketcher::SketchObject", "Sketch006")
sketch7.AttachmentSupport = (doc.getObject("YZ_Plane"), [""])
sketch7.MapMode = "FlatFace"
sketch7.AttachmentOffset = App.Placement(Vector(0, 0, 260), App.Rotation())
sketch7.addGeometry(Part.Circle(Vector(300, 100, 0), Vector(0, 0, 1), 12.5), False)
sketch7.addGeometry(Part.Circle(Vector(300, 50, 0), Vector(0, 0, 1), 12.5), False)
sketch7.addConstraint(Sketcher.Constraint("Equal", 0, 1))
sketch7.addConstraint(Sketcher.Constraint("Vertical", 0, 3, 1, 3))
sketch7.addConstraint(Sketcher.Constraint("Diameter", 0, 25.0))
sketch7.addConstraint(Sketcher.Constraint("DistanceX", -1, 1, 0, 3, 300.0))
sketch7.addConstraint(Sketcher.Constraint("DistanceY", -1, 1, 0, 3, 100.0))
sketch7.addConstraint(Sketcher.Constraint("DistanceY", -1, 1, 1, 3, 50.0))
pocket6 = body.newObject("PartDesign::Pocket", "Pocket005")
pocket6.Profile = sketch7
pocket6.Length = 10

sketch8 = body.newObject("Sketcher::SketchObject", "Sketch007")
sketch8.AttachmentSupport = (doc.getObject("XZ_Plane"), [""])
sketch8.MapMode = "FlatFace"
sketch8.AttachmentOffset = App.Placement(Vector(0, 0, -300), App.Rotation())
sketch8.addGeometry(Part.LineSegment(Vector(-30, 300, 0), Vector(-30, 340, 0)), False)
sketch8.addGeometry(Part.ArcOfCircle(Part.Circle(Vector(0, 340, 0), Vector(0, 0, 1), 30), math.radians(0), math.radians(180)), False)
sketch8.addGeometry(Part.LineSegment(Vector(30, 340, 0), Vector(30, 300, 0)), False)
sketch8.addGeometry(Part.LineSegment(Vector(30, 300, 0), Vector(-30, 300, 0)), False)
sketch8.addGeometry(Part.Circle(Vector(0, 340, 0), Vector(0, 0, 1), 15), False)
sketch8.addConstraint(Sketcher.Constraint("Tangent", 0, 2, 1, 2))
sketch8.addConstraint(Sketcher.Constraint("Tangent", 1, 1, 2, 1))
sketch8.addConstraint(Sketcher.Constraint("Coincident", 2, 2, 3, 1))
sketch8.addConstraint(Sketcher.Constraint("Coincident", 3, 2, 0, 1))
sketch8.addConstraint(Sketcher.Constraint("Vertical", 0))
sketch8.addConstraint(Sketcher.Constraint("Vertical", 2))
sketch8.addConstraint(Sketcher.Constraint("Horizontal", 3))
sketch8.addConstraint(Sketcher.Constraint("Coincident", 4, 3, 1, 3))
sketch8.addConstraint(Sketcher.Constraint("PointOnObject", 1, 3, -2))
sketch8.addConstraint(Sketcher.Constraint("Diameter", 4, 30.0))
sketch8.addConstraint(Sketcher.Constraint("Radius", 1, 30.0))
sketch8.addConstraint(Sketcher.Constraint("DistanceY", 0, 1, 0, 2, 40.0))
sketch8.addConstraint(Sketcher.Constraint("DistanceY", -1, 1, 1, 3, 340.0))
pad2 = body.newObject("PartDesign::Pad", "Pad001")
pad2.Profile = sketch8
pad2.Length = 300

sketch9 = body.newObject("Sketcher::SketchObject", "Sketch008")
sketch9.AttachmentSupport = (doc.getObject("YZ_Plane"), [""])
sketch9.MapMode = "FlatFace"
sketch9.AttachmentOffset = App.Placement(Vector(0, 0, -30), App.Rotation())
add_polygon(sketch9, [(295, 300), (5, 300), (5, 477.621373), (295, 477.621373)])
sketch9.addConstraint(Sketcher.Constraint("Horizontal", 0))
sketch9.addConstraint(Sketcher.Constraint("Vertical", 1))
sketch9.addConstraint(Sketcher.Constraint("Horizontal", 2))
sketch9.addConstraint(Sketcher.Constraint("Vertical", 3))
sketch9.addConstraint(Sketcher.Constraint("DistanceX", 0, 2, 0, 1, 290.0))
sketch9.addConstraint(Sketcher.Constraint("DistanceX", -1, 1, 0, 2, 5.0))
sketch9.addConstraint(Sketcher.Constraint("DistanceY", -1, 1, 0, 2, 300.0))
sketch9.addConstraint(Sketcher.Constraint("DistanceY", 1, 1, 1, 2, 177.621373))
pocket7 = body.newObject("PartDesign::Pocket", "Pocket006")
pocket7.Profile = sketch9
pocket7.Length = 60
pocket7.Reversed = True

sketch10 = body.newObject("Sketcher::SketchObject", "Sketch009")
sketch10.AttachmentSupport = (doc.getObject("XZ_Plane"), [""])
sketch10.MapMode = "FlatFace"
sketch10.AttachmentOffset = App.Placement(Vector(0, 0, -50), App.Rotation())
add_polygon(sketch10, [(-225, -50), (-225, 265), (225, 265), (225, -50)])
sketch10.addConstraint(Sketcher.Constraint("Vertical", 0))
sketch10.addConstraint(Sketcher.Constraint("Horizontal", 1))
sketch10.addConstraint(Sketcher.Constraint("Vertical", 2))
sketch10.addConstraint(Sketcher.Constraint("Horizontal", 3))
sketch10.addConstraint(Sketcher.Constraint("DistanceX", 1, 1, 1, 2, 450.0))
sketch10.addConstraint(Sketcher.Constraint("DistanceY", 0, 1, 0, 2, 315.0))
sketch10.addConstraint(Sketcher.Constraint("DistanceX", 0, 2, -1, 1, 225.0))
sketch10.addConstraint(Sketcher.Constraint("DistanceY", -1, 1, 0, 2, 265.0))
pocket8 = body.newObject("PartDesign::Pocket", "Pocket007")
pocket8.Profile = sketch10
pocket8.Type = "ThroughAll"
pocket8.Reversed = True
doc.recompute()

fillet = body.newObject("PartDesign::Fillet", "Fillet")
fillet.Base = (pocket8, edges_at(pocket8, [(-257.5, 50, -300), (257.5, 50, -300)]))
fillet.Radius = 10

sketch11 = body.newObject("Sketcher::SketchObject", "Sketch010")
sketch11.AttachmentSupport = (doc.getObject("YZ_Plane"), [""])
sketch11.MapMode = "FlatFace"
sketch11.AttachmentOffset = App.Placement(Vector(0, 0, 260), App.Rotation())
sketch11.addGeometry(Part.Circle(Vector(300, 120, 0), Vector(0, 0, 1), 3), False)
sketch11.addGeometry(Part.Circle(Vector(282.679492, 90, 0), Vector(0, 0, 1), 3), False)
sketch11.addConstraint(Sketcher.Constraint("Equal", 0, 1))
sketch11.addConstraint(Sketcher.Constraint("Diameter", 0, 6.0))
sketch11.addConstraint(Sketcher.Constraint("DistanceX", -1, 1, 0, 3, 300.0))
sketch11.addConstraint(Sketcher.Constraint("DistanceY", -1, 1, 0, 3, 120.0))
sketch11.addConstraint(Sketcher.Constraint("DistanceY", -1, 1, 1, 3, 90.0))
sketch11.addConstraint(Sketcher.Constraint("DistanceX", -1, 1, 1, 3, 282.679492))
pocket9 = body.newObject("PartDesign::Pocket", "Pocket008")
pocket9.Profile = sketch11
pocket9.Length = 5

sketch12 = body.newObject("Sketcher::SketchObject", "Sketch011")
sketch12.AttachmentSupport = (doc.getObject("YZ_Plane"), [""])
sketch12.MapMode = "FlatFace"
sketch12.AttachmentOffset = App.Placement(Vector(0, 0, -260), App.Rotation())
sketch12.addGeometry(Part.Circle(Vector(300, 30, 0), Vector(0, 0, 1), 3), False)
sketch12.addGeometry(Part.Circle(Vector(282.679492, 60, 0), Vector(0, 0, 1), 3), False)
sketch12.addConstraint(Sketcher.Constraint("Equal", 0, 1))
sketch12.addConstraint(Sketcher.Constraint("Diameter", 0, 6.0))
sketch12.addConstraint(Sketcher.Constraint("DistanceX", -1, 1, 0, 3, 300.0))
sketch12.addConstraint(Sketcher.Constraint("DistanceY", -1, 1, 0, 3, 30.0))
sketch12.addConstraint(Sketcher.Constraint("DistanceY", -1, 1, 1, 3, 60.0))
sketch12.addConstraint(Sketcher.Constraint("DistanceX", -1, 1, 1, 3, 282.679492))
pocket10 = body.newObject("PartDesign::Pocket", "Pocket009")
pocket10.Profile = sketch12
pocket10.Length = 5
pocket10.Reversed = True

sketch13 = body.newObject("Sketcher::SketchObject", "Sketch012")
sketch13.AttachmentSupport = (doc.getObject("YZ_Plane"), [""])
sketch13.MapMode = "FlatFace"
sketch13.AttachmentOffset = App.Placement(Vector(0, 0, 260), App.Rotation())
sketch13.addGeometry(Part.Circle(Vector(300, 27, 0), Vector(0, 0, 1), 3), False)
sketch13.addGeometry(Part.Circle(Vector(280.081416, 61.5, 0), Vector(0, 0, 1), 3), False)
sketch13.addConstraint(Sketcher.Constraint("Equal", 0, 1))
sketch13.addConstraint(Sketcher.Constraint("Diameter", 0, 6.0))
sketch13.addConstraint(Sketcher.Constraint("DistanceX", -1, 1, 0, 3, 300.0))
sketch13.addConstraint(Sketcher.Constraint("DistanceY", -1, 1, 0, 3, 27.0))
sketch13.addConstraint(Sketcher.Constraint("DistanceY", -1, 1, 1, 3, 61.5))
sketch13.addConstraint(Sketcher.Constraint("DistanceX", -1, 1, 1, 3, 280.081416))
pocket11 = body.newObject("PartDesign::Pocket", "Pocket010")
pocket11.Profile = sketch13
pocket11.Length = 5

doc.recompute()
